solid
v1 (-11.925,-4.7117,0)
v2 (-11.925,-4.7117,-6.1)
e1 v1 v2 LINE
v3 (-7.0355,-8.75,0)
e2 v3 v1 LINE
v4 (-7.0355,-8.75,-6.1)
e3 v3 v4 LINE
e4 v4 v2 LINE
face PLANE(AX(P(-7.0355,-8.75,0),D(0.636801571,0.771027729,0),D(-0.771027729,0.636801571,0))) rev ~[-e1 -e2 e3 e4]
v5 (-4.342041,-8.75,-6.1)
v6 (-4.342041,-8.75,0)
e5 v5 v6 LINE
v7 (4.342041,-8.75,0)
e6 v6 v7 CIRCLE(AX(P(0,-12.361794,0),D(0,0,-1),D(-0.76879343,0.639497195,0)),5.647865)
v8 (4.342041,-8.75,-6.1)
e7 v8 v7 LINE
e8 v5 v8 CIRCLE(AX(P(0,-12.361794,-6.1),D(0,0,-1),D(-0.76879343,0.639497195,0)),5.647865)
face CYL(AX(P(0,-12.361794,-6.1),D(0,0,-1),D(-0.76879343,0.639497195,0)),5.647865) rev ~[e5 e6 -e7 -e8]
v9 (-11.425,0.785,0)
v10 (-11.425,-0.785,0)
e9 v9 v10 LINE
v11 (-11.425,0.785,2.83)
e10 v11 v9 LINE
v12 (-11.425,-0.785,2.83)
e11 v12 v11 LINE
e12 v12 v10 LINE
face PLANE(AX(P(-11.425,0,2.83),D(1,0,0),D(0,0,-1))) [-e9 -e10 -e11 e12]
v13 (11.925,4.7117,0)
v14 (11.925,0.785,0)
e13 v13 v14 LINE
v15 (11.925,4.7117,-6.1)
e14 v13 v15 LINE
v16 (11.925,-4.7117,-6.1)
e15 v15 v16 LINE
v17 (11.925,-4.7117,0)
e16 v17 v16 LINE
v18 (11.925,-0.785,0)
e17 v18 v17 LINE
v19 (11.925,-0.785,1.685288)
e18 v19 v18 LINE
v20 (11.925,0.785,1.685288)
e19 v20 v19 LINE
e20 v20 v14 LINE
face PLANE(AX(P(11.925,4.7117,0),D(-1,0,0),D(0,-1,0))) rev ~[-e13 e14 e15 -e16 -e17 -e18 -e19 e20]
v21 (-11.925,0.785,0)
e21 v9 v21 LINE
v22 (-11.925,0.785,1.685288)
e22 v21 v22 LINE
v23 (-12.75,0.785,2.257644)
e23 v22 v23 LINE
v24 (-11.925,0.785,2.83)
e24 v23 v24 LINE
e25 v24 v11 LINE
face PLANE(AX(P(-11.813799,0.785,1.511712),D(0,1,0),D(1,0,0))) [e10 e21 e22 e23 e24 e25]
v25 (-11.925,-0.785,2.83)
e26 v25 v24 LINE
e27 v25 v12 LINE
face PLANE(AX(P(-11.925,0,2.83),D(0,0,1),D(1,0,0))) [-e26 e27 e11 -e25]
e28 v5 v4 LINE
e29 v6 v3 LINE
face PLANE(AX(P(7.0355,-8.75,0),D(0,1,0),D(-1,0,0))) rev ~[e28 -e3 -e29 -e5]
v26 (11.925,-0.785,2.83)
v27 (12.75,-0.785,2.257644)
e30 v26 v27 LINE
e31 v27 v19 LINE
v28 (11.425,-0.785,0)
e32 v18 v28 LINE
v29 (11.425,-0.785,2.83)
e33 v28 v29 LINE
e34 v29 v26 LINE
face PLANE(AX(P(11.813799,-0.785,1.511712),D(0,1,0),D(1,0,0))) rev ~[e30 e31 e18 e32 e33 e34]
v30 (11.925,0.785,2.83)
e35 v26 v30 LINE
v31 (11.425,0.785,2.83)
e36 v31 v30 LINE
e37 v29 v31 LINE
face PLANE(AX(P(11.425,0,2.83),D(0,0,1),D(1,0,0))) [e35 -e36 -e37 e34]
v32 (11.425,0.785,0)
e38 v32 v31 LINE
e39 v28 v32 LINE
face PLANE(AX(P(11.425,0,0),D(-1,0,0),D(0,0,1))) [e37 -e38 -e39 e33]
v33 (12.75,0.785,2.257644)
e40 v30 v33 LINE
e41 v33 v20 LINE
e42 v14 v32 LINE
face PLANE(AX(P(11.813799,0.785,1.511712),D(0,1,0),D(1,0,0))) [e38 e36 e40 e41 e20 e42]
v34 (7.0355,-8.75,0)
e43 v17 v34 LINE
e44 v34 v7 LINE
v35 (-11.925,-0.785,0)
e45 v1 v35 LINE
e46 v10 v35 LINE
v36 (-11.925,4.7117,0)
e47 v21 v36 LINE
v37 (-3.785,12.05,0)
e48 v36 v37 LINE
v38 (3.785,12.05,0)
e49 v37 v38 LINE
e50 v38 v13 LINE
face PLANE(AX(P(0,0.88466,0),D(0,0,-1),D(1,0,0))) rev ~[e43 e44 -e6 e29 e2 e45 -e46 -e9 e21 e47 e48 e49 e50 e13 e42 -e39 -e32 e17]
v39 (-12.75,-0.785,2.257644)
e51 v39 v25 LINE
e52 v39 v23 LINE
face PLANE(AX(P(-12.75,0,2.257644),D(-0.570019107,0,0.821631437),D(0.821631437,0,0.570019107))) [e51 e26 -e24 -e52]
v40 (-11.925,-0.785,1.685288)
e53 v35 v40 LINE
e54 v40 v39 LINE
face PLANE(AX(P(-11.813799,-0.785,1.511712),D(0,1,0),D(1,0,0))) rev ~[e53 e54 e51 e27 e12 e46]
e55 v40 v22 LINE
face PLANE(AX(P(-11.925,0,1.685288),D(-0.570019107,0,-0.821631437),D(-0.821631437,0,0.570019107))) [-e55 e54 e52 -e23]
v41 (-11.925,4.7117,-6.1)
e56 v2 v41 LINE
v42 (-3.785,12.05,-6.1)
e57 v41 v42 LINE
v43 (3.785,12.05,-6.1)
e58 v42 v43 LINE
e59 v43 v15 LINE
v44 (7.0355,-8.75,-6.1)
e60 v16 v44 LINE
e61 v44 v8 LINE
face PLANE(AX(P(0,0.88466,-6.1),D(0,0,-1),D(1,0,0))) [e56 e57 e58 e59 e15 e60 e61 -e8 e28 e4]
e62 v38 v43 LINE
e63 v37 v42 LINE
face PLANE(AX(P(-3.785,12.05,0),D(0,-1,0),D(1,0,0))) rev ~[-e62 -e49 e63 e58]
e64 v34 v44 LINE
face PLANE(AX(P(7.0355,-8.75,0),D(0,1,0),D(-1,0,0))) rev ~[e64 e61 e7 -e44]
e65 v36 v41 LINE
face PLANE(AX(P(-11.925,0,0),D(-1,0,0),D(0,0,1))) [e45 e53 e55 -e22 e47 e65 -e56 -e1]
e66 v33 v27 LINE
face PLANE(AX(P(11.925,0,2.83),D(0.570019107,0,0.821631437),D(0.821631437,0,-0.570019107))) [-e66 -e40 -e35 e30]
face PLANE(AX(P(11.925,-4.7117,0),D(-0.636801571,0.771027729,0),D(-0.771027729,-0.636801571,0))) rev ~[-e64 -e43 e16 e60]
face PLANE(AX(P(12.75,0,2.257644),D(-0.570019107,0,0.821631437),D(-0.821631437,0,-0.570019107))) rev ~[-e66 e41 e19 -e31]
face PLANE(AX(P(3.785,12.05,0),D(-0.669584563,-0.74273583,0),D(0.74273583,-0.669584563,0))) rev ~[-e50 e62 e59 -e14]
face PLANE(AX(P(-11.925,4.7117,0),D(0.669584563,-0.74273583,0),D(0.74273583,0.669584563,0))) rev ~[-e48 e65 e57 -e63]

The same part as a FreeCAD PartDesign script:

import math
import FreeCAD as App
import Part
import Sketcher
from FreeCAD import Vector
Q = App.Units.Quantity


def add_polygon(sketch, points):
    """Adds a closed chain of lines whose ends are joined by coincident constraints."""
    first, n = sketch.GeometryCount, len(points)
    for a, b in zip(points, points[1:] + points[:1]):
        sketch.addGeometry(Part.LineSegment(App.Vector(*a, 0), App.Vector(*b, 0)), False)
    for i in range(n):
        sketch.addConstraint(Sketcher.Constraint("Coincident", first + i, 2, first + (i + 1) % n, 1))

doc = App.newDocument("Part")
body = doc.addObject("PartDesign::Body", "Body")

# Sketch on XY plane
sketch1 = body.newObject("Sketcher::SketchObject", "Sketch")
sketch1.AttachmentSupport = (doc.getObject("XY_Plane"), [""])
sketch1.MapMode = "FlatFace"
add_polygon(sketch1, [(-7, 9), (-12, 5), (-12, -5), (-4, -12), (4, -12), (12, -5), (12, 5), (7, 9)])  # lines 0-7
sketch1.addConstraint([
    Sketcher.Constraint("Vertical", 1),
    Sketcher.Constraint("Horizontal", 3),
    Sketcher.Constraint("Vertical", 5),
    Sketcher.Constraint("Horizontal", 7),
    Sketcher.Constraint("Symmetric", 0, 2, 4, 2, -1, 1),
    Sketcher.Constraint("Horizontal", 1, 2, 4, 2),
    Sketcher.Constraint("Horizontal", 0, 2, 5, 2),
    Sketcher.Constraint("Equal", 2, 4),
    Sketcher.Constraint("Equal", 0, 6),
    Sketcher.Constraint("DistanceX", 3, 1, 3, 2, Q("7.57 mm")),
    Sketcher.Constraint("DistanceY", 3, 2, 6, 2, Q("20.8 mm")),
    Sketcher.Constraint("DistanceX", 7, 2, 7, 1, Q("14.071 mm")),
    Sketcher.Constraint("DistanceY", 2, 2, -1, 1, Q("12.05 mm")),
    Sketcher.Constraint("DistanceX", 1, 2, 2, 2, Q("8.14 mm")),
    Sketcher.Constraint("DistanceY", 1, 2, 1, 1, Q("9.4234 mm")),
])
pad1 = body.newObject("PartDesign::Pad", "Pad")
pad1.Profile = sketch1
pad1.Length = 6.1

# Sketch on XZ plane
sketch2 = body.newObject("Sketcher::SketchObject", "Sketch001")
sketch2.AttachmentSupport = (doc.getObject("XZ_Plane"), [""])
sketch2.MapMode = "FlatFace"
add_polygon(sketch2, [(-11.4, 0), (-11.9, 0), (-11.9, -1.7), (-12.8, -2.3), (-11.9, -2.8), (-11.4, -2.8)])  # lines 0-5
add_polygon(sketch2, [(11.9, -1.7), (11.9, 0), (11.4, 0), (11.4, -2.8), (11.9, -2.8), (12.8, -2.3)])  # lines 6-11
sketch2.addConstraint([
    Sketcher.Constraint("Horizontal", 0),
    Sketcher.Constraint("Vertical", 1),
    Sketcher.Constraint("Horizontal", 4),
    Sketcher.Constraint("Vertical", 5),
    Sketcher.Constraint("Vertical", 6),
    Sketcher.Constraint("Horizontal", 7),
    Sketcher.Constraint("Vertical", 8),
    Sketcher.Constraint("Horizontal", 9),
    Sketcher.Constraint("Symmetric", 0, 2, 6, 2, -1, 1),
    Sketcher.Constraint("Symmetric", 5, 2, 7, 2, -2),
    Sketcher.Constraint("Symmetric", 3, 2, 9, 2, -2),
    Sketcher.Constraint("Symmetric", 2, 2, 10, 2, -2),
    Sketcher.Constraint("Parallel", 2, 10),
    Sketcher.Constraint("Parallel", 3, 11),
    Sketcher.Constraint("Vertical", 1, 2, 3, 2),
    Sketcher.Constraint("DistanceX", 0, 2, 0, 1, Q("0.5 mm")),
    Sketcher.Constraint("DistanceY", 5, 1, 5, 2, Q("2.83 mm")),
    Sketcher.Constraint("DistanceX", 2, 2, -1, 1, Q("12.75 mm")),
    Sketcher.Constraint("DistanceX", 5, 2, 6, 2, Q("23.35 mm")),
    Sketcher.Constraint("Distance", 2, Q("1.0041 mm")),
])
pad2 = body.newObject("PartDesign::Pad", "Pad001")
pad2.Profile = sketch2
pad2.Type = "TwoLengths"
pad2.Length = 0.785
pad2.Length2 = 0.785

# Sketch on XY plane
sketch3 = body.newObject("Sketcher::SketchObject", "Sketch002")
sketch3.AttachmentSupport = (doc.getObject("XY_Plane"), [""])
sketch3.MapMode = "FlatFace"
sketch3.AttachmentOffset = App.Placement(Vector(0, 0, 6.1), App.Rotation())
sketch3.addGeometry([
    Part.LineSegment(Vector(4, 9, 0), Vector(-4, 9, 0)),
    Part.ArcOfCircle(Part.Circle(Vector(0, 12, 0), Vector(0, 0, 1), 6), math.radians(-140), math.radians(-40)),
], False)
sketch3.addConstraint([
    Sketcher.Constraint("Coincident", 0, 1, 1, 2),
    Sketcher.Constraint("Coincident", 1, 1, 0, 2),
    Sketcher.Constraint("Horizontal", 0),
    Sketcher.Constraint("PointOnObject", 1, 3, -2),
    Sketcher.Constraint("DistanceY", -1, 1, 0, 1, Q("8.75 mm")),
    Sketcher.Constraint("Radius", 1, Q("5.647865 mm")),
    Sketcher.Constraint("DistanceX", 0, 2, 0, 1, Q("8.684083 mm")),
])
pocket1 = body.newObject("PartDesign::Pocket", "Pocket")
pocket1.Profile = sketch3
pocket1.Type = "ThroughAll"
body2 = doc.addObject("PartDesign::Body", "Body001")
doc.recompute()

body.Placement = App.Placement(Vector(0, 0, 0), App.Rotation(Vector(1, 0, 0), 180))
boolean = body2.newObject("PartDesign::Boolean", "Boolean")
boolean.Type = "Fuse"
boolean.addObjects([body])

doc.recompute()
